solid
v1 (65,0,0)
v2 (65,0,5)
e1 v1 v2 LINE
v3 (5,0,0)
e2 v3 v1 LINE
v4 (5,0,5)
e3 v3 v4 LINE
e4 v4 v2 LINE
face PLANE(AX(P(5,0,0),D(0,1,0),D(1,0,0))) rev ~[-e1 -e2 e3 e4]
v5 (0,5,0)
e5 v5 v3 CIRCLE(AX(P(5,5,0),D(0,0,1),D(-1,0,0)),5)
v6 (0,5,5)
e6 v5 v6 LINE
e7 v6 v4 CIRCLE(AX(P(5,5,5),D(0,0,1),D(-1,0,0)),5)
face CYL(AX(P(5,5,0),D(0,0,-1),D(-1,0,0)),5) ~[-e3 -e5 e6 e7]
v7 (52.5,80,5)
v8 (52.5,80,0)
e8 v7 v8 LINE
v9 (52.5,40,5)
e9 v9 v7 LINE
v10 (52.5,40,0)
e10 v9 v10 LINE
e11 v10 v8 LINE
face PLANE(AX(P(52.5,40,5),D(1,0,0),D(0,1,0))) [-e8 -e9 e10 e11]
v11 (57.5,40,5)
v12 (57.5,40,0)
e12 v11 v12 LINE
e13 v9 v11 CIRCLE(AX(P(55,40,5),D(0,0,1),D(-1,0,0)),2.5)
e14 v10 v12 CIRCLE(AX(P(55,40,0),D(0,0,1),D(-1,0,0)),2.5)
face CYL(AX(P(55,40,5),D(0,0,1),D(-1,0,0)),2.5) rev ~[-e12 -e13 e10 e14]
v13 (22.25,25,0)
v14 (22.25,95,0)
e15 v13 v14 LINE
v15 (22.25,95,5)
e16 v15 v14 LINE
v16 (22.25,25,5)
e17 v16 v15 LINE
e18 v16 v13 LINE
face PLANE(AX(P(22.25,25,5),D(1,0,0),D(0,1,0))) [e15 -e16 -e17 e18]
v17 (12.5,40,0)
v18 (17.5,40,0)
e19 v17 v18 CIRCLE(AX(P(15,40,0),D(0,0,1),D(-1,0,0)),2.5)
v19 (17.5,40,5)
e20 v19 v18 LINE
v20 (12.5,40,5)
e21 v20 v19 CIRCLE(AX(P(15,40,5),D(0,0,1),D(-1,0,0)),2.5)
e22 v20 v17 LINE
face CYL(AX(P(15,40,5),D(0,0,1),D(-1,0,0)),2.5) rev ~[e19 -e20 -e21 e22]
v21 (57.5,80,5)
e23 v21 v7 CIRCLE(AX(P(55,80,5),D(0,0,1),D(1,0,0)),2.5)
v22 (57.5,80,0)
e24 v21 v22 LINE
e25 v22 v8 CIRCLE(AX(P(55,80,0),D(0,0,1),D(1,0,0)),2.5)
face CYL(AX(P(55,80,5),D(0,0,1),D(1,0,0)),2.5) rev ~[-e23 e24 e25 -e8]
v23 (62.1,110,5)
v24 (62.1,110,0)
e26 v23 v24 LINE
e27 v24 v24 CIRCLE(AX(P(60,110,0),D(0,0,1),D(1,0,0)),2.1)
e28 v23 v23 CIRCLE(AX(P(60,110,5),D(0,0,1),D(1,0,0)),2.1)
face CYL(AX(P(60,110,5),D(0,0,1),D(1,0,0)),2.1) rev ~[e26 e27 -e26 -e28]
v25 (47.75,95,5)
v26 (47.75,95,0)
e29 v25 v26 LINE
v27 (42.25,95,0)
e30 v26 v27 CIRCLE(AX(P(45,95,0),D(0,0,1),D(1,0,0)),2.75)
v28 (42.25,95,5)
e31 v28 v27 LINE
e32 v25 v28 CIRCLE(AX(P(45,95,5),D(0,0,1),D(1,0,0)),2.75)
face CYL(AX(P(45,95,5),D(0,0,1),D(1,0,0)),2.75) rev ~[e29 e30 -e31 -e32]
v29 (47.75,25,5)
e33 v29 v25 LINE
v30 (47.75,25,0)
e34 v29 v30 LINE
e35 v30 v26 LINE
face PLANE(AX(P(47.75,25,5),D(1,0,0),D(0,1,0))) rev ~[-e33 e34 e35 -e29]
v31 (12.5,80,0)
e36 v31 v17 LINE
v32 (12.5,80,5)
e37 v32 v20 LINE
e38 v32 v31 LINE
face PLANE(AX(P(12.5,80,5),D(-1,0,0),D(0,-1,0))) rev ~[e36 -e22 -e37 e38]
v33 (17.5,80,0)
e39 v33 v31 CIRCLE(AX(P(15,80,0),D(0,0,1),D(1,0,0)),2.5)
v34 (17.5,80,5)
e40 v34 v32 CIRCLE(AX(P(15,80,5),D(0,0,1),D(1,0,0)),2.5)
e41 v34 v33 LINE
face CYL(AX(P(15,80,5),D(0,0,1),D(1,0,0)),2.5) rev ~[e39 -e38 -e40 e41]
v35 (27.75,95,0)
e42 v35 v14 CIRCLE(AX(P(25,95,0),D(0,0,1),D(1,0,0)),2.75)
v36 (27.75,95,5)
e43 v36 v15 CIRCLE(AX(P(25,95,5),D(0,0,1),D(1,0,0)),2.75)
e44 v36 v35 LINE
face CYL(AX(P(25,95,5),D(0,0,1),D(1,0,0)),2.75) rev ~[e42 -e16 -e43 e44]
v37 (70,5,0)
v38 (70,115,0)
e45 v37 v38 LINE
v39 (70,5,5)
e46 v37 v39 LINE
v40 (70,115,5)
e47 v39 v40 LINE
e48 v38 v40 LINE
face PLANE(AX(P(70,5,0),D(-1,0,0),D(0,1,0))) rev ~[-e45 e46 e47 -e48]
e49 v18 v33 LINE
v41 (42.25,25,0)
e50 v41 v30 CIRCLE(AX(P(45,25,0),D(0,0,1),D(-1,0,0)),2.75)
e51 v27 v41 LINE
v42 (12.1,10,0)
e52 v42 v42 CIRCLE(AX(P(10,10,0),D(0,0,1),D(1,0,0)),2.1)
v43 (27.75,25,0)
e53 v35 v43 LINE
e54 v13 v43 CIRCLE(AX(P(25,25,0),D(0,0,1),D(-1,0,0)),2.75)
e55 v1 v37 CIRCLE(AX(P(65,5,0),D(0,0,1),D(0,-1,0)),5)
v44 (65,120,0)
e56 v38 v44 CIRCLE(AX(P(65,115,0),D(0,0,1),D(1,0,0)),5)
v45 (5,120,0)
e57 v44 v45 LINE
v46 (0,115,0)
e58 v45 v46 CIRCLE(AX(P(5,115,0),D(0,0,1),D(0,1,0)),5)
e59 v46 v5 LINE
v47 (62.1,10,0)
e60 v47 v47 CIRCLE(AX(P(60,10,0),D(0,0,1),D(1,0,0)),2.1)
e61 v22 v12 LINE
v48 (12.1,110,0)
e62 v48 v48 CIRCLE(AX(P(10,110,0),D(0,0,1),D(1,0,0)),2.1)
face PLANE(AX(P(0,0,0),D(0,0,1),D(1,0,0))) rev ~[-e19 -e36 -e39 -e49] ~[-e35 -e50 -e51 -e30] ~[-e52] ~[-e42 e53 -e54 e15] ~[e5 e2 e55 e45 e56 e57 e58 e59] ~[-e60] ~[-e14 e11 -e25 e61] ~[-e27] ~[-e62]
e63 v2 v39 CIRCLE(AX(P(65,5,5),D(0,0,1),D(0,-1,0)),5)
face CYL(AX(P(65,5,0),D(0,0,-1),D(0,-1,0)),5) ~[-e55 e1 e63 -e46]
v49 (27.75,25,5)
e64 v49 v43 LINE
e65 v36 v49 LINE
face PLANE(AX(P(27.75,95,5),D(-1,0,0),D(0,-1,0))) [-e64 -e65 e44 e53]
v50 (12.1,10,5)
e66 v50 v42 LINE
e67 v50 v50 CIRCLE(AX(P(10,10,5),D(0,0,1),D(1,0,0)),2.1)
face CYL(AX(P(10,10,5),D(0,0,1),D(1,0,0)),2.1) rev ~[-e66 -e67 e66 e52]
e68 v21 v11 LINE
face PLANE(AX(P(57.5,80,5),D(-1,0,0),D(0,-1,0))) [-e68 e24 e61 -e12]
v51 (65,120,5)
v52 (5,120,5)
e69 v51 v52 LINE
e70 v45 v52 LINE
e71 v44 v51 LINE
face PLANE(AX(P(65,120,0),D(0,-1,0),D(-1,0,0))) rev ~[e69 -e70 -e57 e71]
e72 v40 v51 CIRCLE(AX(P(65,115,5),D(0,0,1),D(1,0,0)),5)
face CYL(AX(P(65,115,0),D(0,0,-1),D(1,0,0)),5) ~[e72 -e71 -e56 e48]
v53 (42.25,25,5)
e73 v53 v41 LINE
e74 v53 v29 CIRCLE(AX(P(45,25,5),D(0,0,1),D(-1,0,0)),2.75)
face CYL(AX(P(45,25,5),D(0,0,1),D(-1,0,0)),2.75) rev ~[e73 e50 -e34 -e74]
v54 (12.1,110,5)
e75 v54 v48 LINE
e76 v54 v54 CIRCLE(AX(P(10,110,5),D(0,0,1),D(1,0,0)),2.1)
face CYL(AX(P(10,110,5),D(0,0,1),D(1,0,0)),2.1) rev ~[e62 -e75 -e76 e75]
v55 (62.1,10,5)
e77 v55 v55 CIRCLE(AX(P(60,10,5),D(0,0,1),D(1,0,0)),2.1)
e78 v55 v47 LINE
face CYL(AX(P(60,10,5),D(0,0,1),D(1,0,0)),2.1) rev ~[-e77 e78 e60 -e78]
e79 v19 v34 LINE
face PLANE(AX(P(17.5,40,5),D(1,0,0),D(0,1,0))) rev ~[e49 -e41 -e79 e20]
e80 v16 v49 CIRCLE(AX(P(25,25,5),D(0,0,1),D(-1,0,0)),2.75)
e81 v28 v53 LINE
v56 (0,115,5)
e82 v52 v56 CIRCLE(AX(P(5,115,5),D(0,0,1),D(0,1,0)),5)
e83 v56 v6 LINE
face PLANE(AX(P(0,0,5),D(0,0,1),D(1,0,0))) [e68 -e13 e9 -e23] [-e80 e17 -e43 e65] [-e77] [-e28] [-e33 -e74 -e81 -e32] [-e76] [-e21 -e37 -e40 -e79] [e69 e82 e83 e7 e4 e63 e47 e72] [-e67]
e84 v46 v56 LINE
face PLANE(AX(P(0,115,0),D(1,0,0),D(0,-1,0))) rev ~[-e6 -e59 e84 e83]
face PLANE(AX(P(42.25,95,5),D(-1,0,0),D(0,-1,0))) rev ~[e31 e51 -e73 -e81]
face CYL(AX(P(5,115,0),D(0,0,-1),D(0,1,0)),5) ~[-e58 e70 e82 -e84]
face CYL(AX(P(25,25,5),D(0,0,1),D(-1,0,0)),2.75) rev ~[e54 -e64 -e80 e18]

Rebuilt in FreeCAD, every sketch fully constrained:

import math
import FreeCAD as App
import Part
import Sketcher

doc = App.newDocument("Part")
body = doc.addObject("PartDesign::Body", "Body")

sketch1 = body.newObject("Sketcher::SketchObject", "Sketch")
sketch1.AttachmentSupport = (doc.getObject("XY_Plane"), [""])
sketch1.MapMode = "FlatFace"
sketch1.addGeometry(Part.ArcOfCircle(Part.Circle(App.Vector(5, 5, 0), App.Vector(0, 0, 1), 5), math.radians(180), math.radians(270)), False)
sketch1.addGeometry(Part.LineSegment(App.Vector(5, 0, 0), App.Vector(65, 0, 0)), False)
sketch1.addGeometry(Part.ArcOfCircle(Part.Circle(App.Vector(65, 5, 0), App.Vector(0, 0, 1), 5), math.radians(-90), math.radians(0)), False)
sketch1.addGeometry(Part.LineSegment(App.Vector(70, 5, 0), App.Vector(70, 115, 0)), False)
sketch1.addGeometry(Part.ArcOfCircle(Part.Circle(App.Vector(65, 115, 0), App.Vector(0, 0, 1), 5), math.radians(0), math.radians(90)), False)
sketch1.addGeometry(Part.LineSegment(App.Vector(65, 120, 0), App.Vector(5, 120, 0)), False)
sketch1.addGeometry(Part.ArcOfCircle(Part.Circle(App.Vector(5, 115, 0), App.Vector(0, 0, 1), 5), math.radians(90), math.radians(180)), False)
sketch1.addGeometry(Part.LineSegment(App.Vector(0, 115, 0), App.Vector(0, 5, 0)), False)
sketch1.addConstraint(Sketcher.Constraint("Tangent", 0, 2, 1, 1))
sketch1.addConstraint(Sketcher.Constraint("Tangent", 1, 2, 2, 1))
sketch1.addConstraint(Sketcher.Constraint("Tangent", 2, 2, 3, 1))
sketch1.addConstraint(Sketcher.Constraint("Tangent", 3, 2, 4, 1))
sketch1.addConstraint(Sketcher.Constraint("Tangent", 4, 2, 5, 1))
sketch1.addConstraint(Sketcher.Constraint("Tangent", 5, 2, 6, 1))
sketch1.addConstraint(Sketcher.Constraint("Tangent", 6, 2, 7, 1))
sketch1.addConstraint(Sketcher.Constraint("Tangent", 7, 2, 0, 1))
sketch1.addConstraint(Sketcher.Constraint("Horizontal", 1))
sketch1.addConstraint(Sketcher.Constraint("Vertical", 3))
sketch1.addConstraint(Sketcher.Constraint("Horizontal", 5))
sketch1.addConstraint(Sketcher.Constraint("Vertical", 7))
sketch1.addConstraint(Sketcher.Constraint("Equal", 0, 2))
sketch1.addConstraint(Sketcher.Constraint("Equal", 2, 4))
sketch1.addConstraint(Sketcher.Constraint("Equal", 4, 6))
sketch1.addConstraint(Sketcher.Constraint("PointOnObject", 0, 2, -1))
sketch1.addConstraint(Sketcher.Constraint("PointOnObject", 6, 2, -2))
sketch1.addConstraint(Sketcher.Constraint("Radius", 0, 5.0))
sketch1.addConstraint(Sketcher.Constraint("DistanceX", -1, 1, 2, 2, 70.0))
sketch1.addConstraint(Sketcher.Constraint("DistanceY", -1, 1, 4, 2, 120.0))
pad1 = body.newObject("PartDesign::Pad", "Pad")
pad1.Profile = sketch1
pad1.Length = 5

sketch2 = body.newObject("Sketcher::SketchObject", "Sketch001")
sketch2.AttachmentSupport = (doc.getObject("XY_Plane"), [""])
sketch2.MapMode = "FlatFace"
sketch2.AttachmentOffset = App.Placement(App.Vector(0, 0, 5), App.Rotation())
sketch2.addGeometry(Part.Circle(App.Vector(60, 10, 0), App.Vector(0, 0, 1), 2.1), False)
sketch2.addGeometry(Part.Circle(App.Vector(10, 10, 0), App.Vector(0, 0, 1), 2.1), False)
sketch2.addGeometry(Part.Circle(App.Vector(10, 110, 0), App.Vector(0, 0, 1), 2.1), False)
sketch2.addGeometry(Part.Circle(App.Vector(60, 110, 0), App.Vector(0, 0, 1), 2.1), False)
sketch2.addConstraint(Sketcher.Constraint("Equal", 0, 1))
sketch2.addConstraint(Sketcher.Constraint("Equal", 1, 2))
sketch2.addConstraint(Sketcher.Constraint("Equal", 2, 3))
sketch2.addConstraint(Sketcher.Constraint("Horizontal", 0, 3, 1, 3))
sketch2.addConstraint(Sketcher.Constraint("Horizontal", 2, 3, 3, 3))
sketch2.addConstraint(Sketcher.Constraint("Vertical", 1, 3, 2, 3))
sketch2.addConstraint(Sketcher.Constraint("Vertical", 0, 3, 3, 3))
sketch2.addConstraint(Sketcher.Constraint("Diameter", 0, 4.2))
sketch2.addConstraint(Sketcher.Constraint("DistanceY", -1, 1, 0, 3, 10.0))
sketch2.addConstraint(Sketcher.Constraint("DistanceX", -1, 1, 1, 3, 10.0))
sketch2.addConstraint(Sketcher.Constraint("DistanceX", 1, 3, 0, 3, 50.0))
sketch2.addConstraint(Sketcher.Constraint("DistanceY", 1, 3, 2, 3, 100.0))
pocket1 = body.newObject("PartDesign::Pocket", "Pocket")
pocket1.Profile = sketch2
pocket1.Type = "ThroughAll"

sketch3 = body.newObject("Sketcher::SketchObject", "Sketch002")
sketch3.AttachmentSupport = (doc.getObject("XY_Plane"), [""])
sketch3.MapMode = "FlatFace"
sketch3.AttachmentOffset = App.Placement(App.Vector(0, 0, 5), App.Rotation())
sketch3.addGeometry(Part.ArcOfCircle(Part.Circle(App.Vector(15, 80, 0), App.Vector(0, 0, 1), 2.5), math.radians(0), math.radians(180)), False)
sketch3.addGeometry(Part.LineSegment(App.Vector(12.5, 80, 0), App.Vector(12.5, 40, 0)), False)
sketch3.addGeometry(Part.ArcOfCircle(Part.Circle(App.Vector(15, 40, 0), App.Vector(0, 0, 1), 2.5), math.radians(180), math.radians(360)), False)
sketch3.addGeometry(Part.LineSegment(App.Vector(17.5, 40, 0), App.Vector(17.5, 80, 0)), False)
sketch3.addGeometry(Part.LineSegment(App.Vector(57.5, 40, 0), App.Vector(57.5, 80, 0)), False)
sketch3.addGeometry(Part.ArcOfCircle(Part.Circle(App.Vector(55, 80, 0), App.Vector(0, 0, 1), 2.5), math.radians(0), math.radians(180)), False)
sketch3.addGeometry(Part.LineSegment(App.Vector(52.5, 80, 0), App.Vector(52.5, 40, 0)), False)
sketch3.addGeometry(Part.ArcOfCircle(Part.Circle(App.Vector(55, 40, 0), App.Vector(0, 0, 1), 2.5), math.radians(180), math.radians(360)), False)
sketch3.addConstraint(Sketcher.Constraint("Tangent", 0, 2, 1, 1))
sketch3.addConstraint(Sketcher.Constraint("Tangent", 1, 2, 2, 1))
sketch3.addConstraint(Sketcher.Constraint("Tangent", 2, 2, 3, 1))
sketch3.addConstraint(Sketcher.Constraint("Tangent", 3, 2, 0, 1))
sketch3.addConstraint(Sketcher.Constraint("Tangent", 4, 2, 5, 1))
sketch3.addConstraint(Sketcher.Constraint("Tangent", 5, 2, 6, 1))
sketch3.addConstraint(Sketcher.Constraint("Tangent", 6, 2, 7, 1))
sketch3.addConstraint(Sketcher.Constraint("Tangent", 7, 2, 4, 1))
sketch3.addConstraint(Sketcher.Constraint("Vertical", 1))
sketch3.addConstraint(Sketcher.Constraint("Vertical", 3))
sketch3.addConstraint(Sketcher.Constraint("Vertical", 4))
sketch3.addConstraint(Sketcher.Constraint("Vertical", 6))
sketch3.addConstraint(Sketcher.Constraint("Equal", 2, 5))
sketch3.addConstraint(Sketcher.Constraint("Horizontal", 0, 3, 5, 3))
sketch3.addConstraint(Sketcher.Constraint("Horizontal", 2, 3, 7, 3))
sketch3.addConstraint(Sketcher.Constraint("Radius", 0, 2.5))
sketch3.addConstraint(Sketcher.Constraint("DistanceY", 1, 2, 1, 1, 40.0))
sketch3.addConstraint(Sketcher.Constraint("DistanceY", -1, 1, 2, 3, 40.0))
sketch3.addConstraint(Sketcher.Constraint("DistanceX", 0, 3, 5, 3, 40.0))
sketch3.addConstraint(Sketcher.Constraint("DistanceX", -1, 1, 0, 3, 15.0))
pocket2 = body.newObject("PartDesign::Pocket", "Pocket001")
pocket2.Profile = sketch3
pocket2.Type = "ThroughAll"

sketch4 = body.newObject("Sketcher::SketchObject", "Sketch003")
sketch4.AttachmentSupport = (doc.getObject("XY_Plane"), [""])
sketch4.MapMode = "FlatFace"
sketch4.AttachmentOffset = App.Placement(App.Vector(0, 0, 5), App.Rotation())
sketch4.addGeometry(Part.ArcOfCircle(Part.Circle(App.Vector(45, 25, 0), App.Vector(0, 0, 1), 2.8), math.radians(180), math.radians(360)), False)
sketch4.addGeometry(Part.LineSegment(App.Vector(47.8, 25, 0), App.Vector(47.8, 95, 0)), False)
sketch4.addGeometry(Part.ArcOfCircle(Part.Circle(App.Vector(45, 95, 0), App.Vector(0, 0, 1), 2.8), math.radians(0), math.radians(180)), False)
sketch4.addGeometry(Part.LineSegment(App.Vector(42.2, 95, 0), App.Vector(42.2, 25, 0)), False)
sketch4.addGeometry(Part.LineSegment(App.Vector(22.2, 95, 0), App.Vector(22.2, 25, 0)), False)
sketch4.addGeometry(Part.ArcOfCircle(Part.Circle(App.Vector(25, 25, 0), App.Vector(0, 0, 1), 2.8), math.radians(180), math.radians(360)), False)
sketch4.addGeometry(Part.LineSegment(App.Vector(27.8, 25, 0), App.Vector(27.8, 95, 0)), False)
sketch4.addGeometry(Part.ArcOfCircle(Part.Circle(App.Vector(25, 95, 0), App.Vector(0, 0, 1), 2.8), math.radians(0), math.radians(180)), False)
sketch4.addConstraint(Sketcher.Constraint("Tangent", 0, 2, 1, 1))
sketch4.addConstraint(Sketcher.Constraint("Tangent", 1, 2, 2, 1))
sketch4.addConstraint(Sketcher.Constraint("Tangent", 2, 2, 3, 1))
sketch4.addConstraint(Sketcher.Constraint("Tangent", 3, 2, 0, 1))
sketch4.addConstraint(Sketcher.Constraint("Tangent", 4, 2, 5, 1))
sketch4.addConstraint(Sketcher.Constraint("Tangent", 5, 2, 6, 1))
sketch4.addConstraint(Sketcher.Constraint("Tangent", 6, 2, 7, 1))
sketch4.addConstraint(Sketcher.Constraint("Tangent", 7, 2, 4, 1))
sketch4.addConstraint(Sketcher.Constraint("Vertical", 1))
sketch4.addConstraint(Sketcher.Constraint("Vertical", 3))
sketch4.addConstraint(Sketcher.Constraint("Vertical", 4))
sketch4.addConstraint(Sketcher.Constraint("Vertical", 6))
sketch4.addConstraint(Sketcher.Constraint("Equal", 2, 5))
sketch4.addConstraint(Sketcher.Constraint("Horizontal", 0, 3, 5, 3))
sketch4.addConstraint(Sketcher.Constraint("Horizontal", 2, 3, 7, 3))
sketch4.addConstraint(Sketcher.Constraint("Radius", 0, 2.75))
sketch4.addConstraint(Sketcher.Constraint("DistanceY", 1, 1, 1, 2, 70.0))
sketch4.addConstraint(Sketcher.Constraint("DistanceX", -1, 1, 0, 3, 45.0))
sketch4.addConstraint(Sketcher.Constraint("DistanceY", -1, 1, 0, 3, 25.0))
sketch4.addConstraint(Sketcher.Constraint("DistanceX", -1, 1, 5, 3, 25.0))
pocket3 = body.newObject("PartDesign::Pocket", "Pocket002")
pocket3.Profile = sketch4
pocket3.Length = 5

doc.recompute()
